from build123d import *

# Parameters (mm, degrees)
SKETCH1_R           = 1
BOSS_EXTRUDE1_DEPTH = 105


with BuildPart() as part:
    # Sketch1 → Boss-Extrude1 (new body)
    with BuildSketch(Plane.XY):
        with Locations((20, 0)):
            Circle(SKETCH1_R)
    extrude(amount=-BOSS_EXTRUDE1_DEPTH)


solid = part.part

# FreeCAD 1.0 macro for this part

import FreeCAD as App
import Part
import Sketcher
from FreeCAD import Vector

doc = App.newDocument("Part")
body = doc.addObject("PartDesign::Body", "Body")

# Sketch on XY plane
sketch1 = body.newObject("Sketcher::SketchObject", "Sketch")
sketch1.AttachmentSupport = (doc.getObject("XY_Plane"), [""])
sketch1.MapMode = "FlatFace"
sketch1.addGeometry(Part.Circle(Vector(20, 0, 0), Vector(0, 0, 1), 1), False)
sketch1.addConstraint([
    Sketcher.Constraint("PointOnObject", 0, 3, -1),
    Sketcher.Constraint("Diameter", 0, 2.0),
    Sketcher.Constraint("DistanceX", -1, 1, 0, 3, 20.0),
])
pad1 = body.newObject("PartDesign::Pad", "Pad")
pad1.Profile = sketch1
pad1.Length = 105
pad1.Reversed = True

doc.recompute()
